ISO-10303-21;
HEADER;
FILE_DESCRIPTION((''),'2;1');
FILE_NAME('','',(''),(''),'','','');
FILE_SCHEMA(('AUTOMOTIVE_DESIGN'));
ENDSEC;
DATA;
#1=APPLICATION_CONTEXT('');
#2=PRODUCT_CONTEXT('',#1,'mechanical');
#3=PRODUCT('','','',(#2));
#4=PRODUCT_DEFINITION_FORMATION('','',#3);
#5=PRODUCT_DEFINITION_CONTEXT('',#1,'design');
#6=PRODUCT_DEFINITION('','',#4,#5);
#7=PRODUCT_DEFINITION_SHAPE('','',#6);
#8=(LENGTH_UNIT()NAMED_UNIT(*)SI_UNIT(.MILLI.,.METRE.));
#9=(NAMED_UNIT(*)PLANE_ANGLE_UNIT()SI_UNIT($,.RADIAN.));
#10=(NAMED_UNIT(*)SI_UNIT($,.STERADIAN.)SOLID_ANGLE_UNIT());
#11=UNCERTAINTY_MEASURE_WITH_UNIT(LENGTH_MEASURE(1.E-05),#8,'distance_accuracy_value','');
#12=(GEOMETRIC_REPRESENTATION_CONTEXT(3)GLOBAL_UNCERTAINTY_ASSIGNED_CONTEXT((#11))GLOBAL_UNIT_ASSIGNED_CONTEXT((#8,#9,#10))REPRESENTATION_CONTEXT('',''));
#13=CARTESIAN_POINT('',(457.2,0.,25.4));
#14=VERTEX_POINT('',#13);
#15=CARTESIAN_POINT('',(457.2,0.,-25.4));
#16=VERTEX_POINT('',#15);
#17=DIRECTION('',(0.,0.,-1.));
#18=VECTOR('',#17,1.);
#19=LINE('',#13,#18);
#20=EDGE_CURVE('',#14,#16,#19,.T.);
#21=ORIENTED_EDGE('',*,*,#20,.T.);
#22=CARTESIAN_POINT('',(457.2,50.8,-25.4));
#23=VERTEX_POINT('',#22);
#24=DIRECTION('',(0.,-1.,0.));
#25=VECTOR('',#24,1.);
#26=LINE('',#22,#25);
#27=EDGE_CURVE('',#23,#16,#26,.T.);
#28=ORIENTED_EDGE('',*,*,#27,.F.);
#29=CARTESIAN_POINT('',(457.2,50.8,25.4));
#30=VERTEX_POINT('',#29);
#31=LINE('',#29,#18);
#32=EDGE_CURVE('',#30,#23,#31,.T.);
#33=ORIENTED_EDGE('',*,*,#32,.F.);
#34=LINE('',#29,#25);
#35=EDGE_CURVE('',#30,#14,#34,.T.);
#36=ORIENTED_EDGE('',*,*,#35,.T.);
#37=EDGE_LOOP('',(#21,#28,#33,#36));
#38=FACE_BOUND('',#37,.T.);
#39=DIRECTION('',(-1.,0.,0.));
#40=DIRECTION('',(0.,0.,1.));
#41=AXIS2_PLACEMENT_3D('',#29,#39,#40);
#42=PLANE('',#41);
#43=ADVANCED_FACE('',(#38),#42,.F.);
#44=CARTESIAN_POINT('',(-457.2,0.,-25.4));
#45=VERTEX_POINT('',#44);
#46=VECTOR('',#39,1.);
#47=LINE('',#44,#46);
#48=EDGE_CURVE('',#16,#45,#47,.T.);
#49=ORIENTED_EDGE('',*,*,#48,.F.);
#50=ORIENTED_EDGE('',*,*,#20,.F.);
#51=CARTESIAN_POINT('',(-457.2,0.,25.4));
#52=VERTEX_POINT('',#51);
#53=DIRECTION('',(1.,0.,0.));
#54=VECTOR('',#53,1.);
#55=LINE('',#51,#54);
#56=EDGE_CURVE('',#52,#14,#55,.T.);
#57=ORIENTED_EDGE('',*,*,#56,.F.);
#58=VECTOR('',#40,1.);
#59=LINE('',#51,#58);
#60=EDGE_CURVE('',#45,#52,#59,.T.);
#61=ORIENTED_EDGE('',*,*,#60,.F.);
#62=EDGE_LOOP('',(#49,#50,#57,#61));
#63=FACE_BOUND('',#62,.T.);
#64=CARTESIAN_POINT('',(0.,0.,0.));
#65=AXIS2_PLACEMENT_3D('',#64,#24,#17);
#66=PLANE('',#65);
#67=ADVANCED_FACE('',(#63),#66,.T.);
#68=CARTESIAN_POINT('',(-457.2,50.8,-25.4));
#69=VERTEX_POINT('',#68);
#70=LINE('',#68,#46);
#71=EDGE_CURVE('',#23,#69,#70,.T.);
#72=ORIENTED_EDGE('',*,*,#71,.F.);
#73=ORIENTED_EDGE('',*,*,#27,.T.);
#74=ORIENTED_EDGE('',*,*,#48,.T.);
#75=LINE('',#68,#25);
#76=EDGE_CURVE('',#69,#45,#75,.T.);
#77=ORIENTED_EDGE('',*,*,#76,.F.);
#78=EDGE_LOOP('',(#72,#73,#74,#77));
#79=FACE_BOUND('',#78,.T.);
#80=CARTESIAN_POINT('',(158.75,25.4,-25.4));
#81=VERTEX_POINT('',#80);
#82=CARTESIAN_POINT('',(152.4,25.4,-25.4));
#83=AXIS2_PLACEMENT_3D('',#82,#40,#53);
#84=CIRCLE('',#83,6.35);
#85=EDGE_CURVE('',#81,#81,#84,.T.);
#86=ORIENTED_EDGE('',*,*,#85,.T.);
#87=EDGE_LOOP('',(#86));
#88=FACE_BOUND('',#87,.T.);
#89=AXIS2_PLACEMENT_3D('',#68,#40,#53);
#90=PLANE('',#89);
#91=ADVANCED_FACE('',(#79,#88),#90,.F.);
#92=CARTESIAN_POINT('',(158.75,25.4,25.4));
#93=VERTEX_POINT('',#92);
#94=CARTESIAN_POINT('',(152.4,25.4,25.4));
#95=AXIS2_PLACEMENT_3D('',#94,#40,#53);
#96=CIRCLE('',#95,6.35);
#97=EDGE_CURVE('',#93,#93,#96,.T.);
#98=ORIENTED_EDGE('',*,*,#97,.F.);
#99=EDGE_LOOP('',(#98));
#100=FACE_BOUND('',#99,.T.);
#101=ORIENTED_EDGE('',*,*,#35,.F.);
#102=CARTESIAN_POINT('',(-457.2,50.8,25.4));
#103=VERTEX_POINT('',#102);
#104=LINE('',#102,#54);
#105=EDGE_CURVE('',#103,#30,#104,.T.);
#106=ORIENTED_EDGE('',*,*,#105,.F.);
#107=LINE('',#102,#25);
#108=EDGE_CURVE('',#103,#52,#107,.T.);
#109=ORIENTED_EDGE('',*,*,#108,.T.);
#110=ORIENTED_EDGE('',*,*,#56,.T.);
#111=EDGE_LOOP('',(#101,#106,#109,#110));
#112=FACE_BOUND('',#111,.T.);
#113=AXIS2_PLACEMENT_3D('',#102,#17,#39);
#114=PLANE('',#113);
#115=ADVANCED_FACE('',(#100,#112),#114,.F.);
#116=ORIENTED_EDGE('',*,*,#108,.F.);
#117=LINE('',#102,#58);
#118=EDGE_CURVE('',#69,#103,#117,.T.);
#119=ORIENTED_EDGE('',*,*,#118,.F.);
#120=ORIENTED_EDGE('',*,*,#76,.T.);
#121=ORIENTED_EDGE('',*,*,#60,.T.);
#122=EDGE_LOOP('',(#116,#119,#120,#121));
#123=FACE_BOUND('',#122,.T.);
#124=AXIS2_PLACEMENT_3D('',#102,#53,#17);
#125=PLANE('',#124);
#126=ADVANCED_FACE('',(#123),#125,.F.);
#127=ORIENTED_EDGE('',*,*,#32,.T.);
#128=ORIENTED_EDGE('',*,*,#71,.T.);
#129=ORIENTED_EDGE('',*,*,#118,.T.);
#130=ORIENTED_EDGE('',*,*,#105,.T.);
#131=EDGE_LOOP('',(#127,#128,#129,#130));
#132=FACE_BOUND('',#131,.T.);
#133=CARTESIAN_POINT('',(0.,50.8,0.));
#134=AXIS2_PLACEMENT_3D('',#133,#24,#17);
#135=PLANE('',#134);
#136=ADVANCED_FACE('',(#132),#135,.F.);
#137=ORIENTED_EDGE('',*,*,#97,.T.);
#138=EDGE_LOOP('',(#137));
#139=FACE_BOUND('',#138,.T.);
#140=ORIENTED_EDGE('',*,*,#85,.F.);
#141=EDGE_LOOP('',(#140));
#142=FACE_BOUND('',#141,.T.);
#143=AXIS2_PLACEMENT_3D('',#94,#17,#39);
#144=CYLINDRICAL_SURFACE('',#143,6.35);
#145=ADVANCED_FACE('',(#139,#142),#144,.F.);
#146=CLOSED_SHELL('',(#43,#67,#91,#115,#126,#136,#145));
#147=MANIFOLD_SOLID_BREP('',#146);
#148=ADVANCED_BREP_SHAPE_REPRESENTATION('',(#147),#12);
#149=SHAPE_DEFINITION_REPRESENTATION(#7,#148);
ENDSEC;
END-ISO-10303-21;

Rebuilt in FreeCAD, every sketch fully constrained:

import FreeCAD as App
import Part
import Sketcher

V = App.Vector
Q = App.Units.Quantity

doc = App.newDocument("Part")
params = doc.addObject("Spreadsheet::Sheet", "Params")
for row, (alias, value) in enumerate([
    ("sketch1_width", "36 in"),
    ("sketch1_height", "2 in"),
    ("pad1_length", "2 in"),
    ("sketch2_diameter", "0.5 in"),
], start=1):
    params.set(f"A{row}", alias)
    params.set(f"B{row}", "=" + value)
    params.setAlias(f"B{row}", alias)

body = doc.addObject("PartDesign::Body", "Body")

# Sketch on XZ plane
sketch1 = body.newObject("Sketcher::SketchObject", "Sketch")
sketch1.AttachmentSupport = (doc.getObject("XZ_Plane"), [""])
sketch1.MapMode = "FlatFace"
sketch1.addGeometry([
    Part.LineSegment(V(-457, -25, 0), V(-457, 25, 0)),
    Part.LineSegment(V(-457, 25, 0), V(457, 25, 0)),
    Part.LineSegment(V(457, 25, 0), V(457, -25, 0)),
    Part.LineSegment(V(457, -25, 0), V(-457, -25, 0)),
], False)
sketch1.addConstraint([
    Sketcher.Constraint("Coincident", 0, 2, 1, 1),
    Sketcher.Constraint("Coincident", 1, 2, 2, 1),
    Sketcher.Constraint("Coincident", 2, 2, 3, 1),
    Sketcher.Constraint("Coincident", 3, 2, 0, 1),
    Sketcher.Constraint("Vertical", 0),
    Sketcher.Constraint("Horizontal", 1),
    Sketcher.Constraint("Vertical", 2),
    Sketcher.Constraint("Horizontal", 3),
    Sketcher.Constraint("Symmetric", 0, 2, 2, 2, -1, 1),
    Sketcher.Constraint("DistanceX", 1, 1, 1, 2, Q("36 in")),
    Sketcher.Constraint("DistanceY", 0, 1, 0, 2, Q("2 in")),
])
sketch1.setExpression("Constraints[9]", "Params.sketch1_width")
sketch1.setExpression("Constraints[10]", "Params.sketch1_height")
pad1 = body.newObject("PartDesign::Pad", "Pad")
pad1.Profile = sketch1
pad1.setExpression("Length", "Params.pad1_length")
pad1.Reversed = True

# Sketch on XY plane
sketch2 = body.newObject("Sketcher::SketchObject", "Sketch001")
sketch2.AttachmentSupport = (doc.getObject("XY_Plane"), [""])
sketch2.MapMode = "FlatFace"
sketch2.addGeometry(Part.Circle(V(152, 25, 0), V(0, 0, 1), 6), False)
sketch2.addConstraint([
    Sketcher.Constraint("Diameter", 0, Q("0.5 in")),
    Sketcher.Constraint("DistanceX", -1, 1, 0, 3, Q("6 in")),
    Sketcher.Constraint("DistanceY", -1, 1, 0, 3, Q("1 in")),
])
sketch2.setExpression("Constraints[0]", "Params.sketch2_diameter")
pocket1 = body.newObject("PartDesign::Pocket", "Pocket")
pocket1.Profile = sketch2
pocket1.Type = "ThroughAll"
pocket1.Midplane = True

doc.recompute()
